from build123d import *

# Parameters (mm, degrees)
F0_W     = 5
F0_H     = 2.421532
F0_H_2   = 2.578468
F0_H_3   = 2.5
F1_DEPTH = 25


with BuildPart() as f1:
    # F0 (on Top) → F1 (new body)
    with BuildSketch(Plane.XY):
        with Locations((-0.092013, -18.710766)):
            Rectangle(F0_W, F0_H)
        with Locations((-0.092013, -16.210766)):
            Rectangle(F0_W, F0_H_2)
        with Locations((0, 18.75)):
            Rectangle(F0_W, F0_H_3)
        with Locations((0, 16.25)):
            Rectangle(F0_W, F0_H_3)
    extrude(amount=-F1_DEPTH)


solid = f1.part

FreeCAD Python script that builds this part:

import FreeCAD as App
import Part
import Sketcher


def add_polygon(sketch, points):
    """Adds a closed chain of lines whose ends are joined by coincident constraints."""
    first, n = sketch.GeometryCount, len(points)
    for a, b in zip(points, points[1:] + points[:1]):
        sketch.addGeometry(Part.LineSegment(App.Vector(*a, 0), App.Vector(*b, 0)), False)
    for i in range(n):
        sketch.addConstraint(Sketcher.Constraint("Coincident", first + i, 2, first + (i + 1) % n, 1))

doc = App.newDocument("Part")
body = doc.addObject("PartDesign::Body", "Body")
body.AllowCompound = True

# Sketch on XY plane
sketch1 = doc.addObject("Sketcher::SketchObject", "Sketch")
body.addObject(sketch1)
sketch1.AttachmentSupport = (doc.XY_Plane, [""])
sketch1.MapMode = "FlatFace"
add_polygon(sketch1, [(-3, -20), (2, -20), (2, -15), (-3, -15)])  # lines 0-3
add_polygon(sketch1, [(-2, 20), (-2, 15), (2, 15), (2, 20)])  # lines 4-7
sketch1.addConstraint(Sketcher.Constraint("Horizontal", 0))
sketch1.addConstraint(Sketcher.Constraint("Vertical", 1))
sketch1.addConstraint(Sketcher.Constraint("Horizontal", 2))
sketch1.addConstraint(Sketcher.Constraint("Vertical", 3))
sketch1.addConstraint(Sketcher.Constraint("Vertical", 4))
sketch1.addConstraint(Sketcher.Constraint("Horizontal", 5))
sketch1.addConstraint(Sketcher.Constraint("Vertical", 6))
sketch1.addConstraint(Sketcher.Constraint("Horizontal", 7))
sketch1.addConstraint(Sketcher.Constraint("Equal", 2, 5))
sketch1.addConstraint(Sketcher.Constraint("Equal", 7, 1))
sketch1.addConstraint(Sketcher.Constraint("Equal", 3, 4))
sketch1.addConstraint(Sketcher.Constraint("DistanceX", 0, 1, 0, 2, 5.0))
sketch1.addConstraint(Sketcher.Constraint("DistanceY", -1, 1, 4, 2, 15.0))
sketch1.addConstraint(Sketcher.Constraint("DistanceX", 4, 2, -1, 1, 2.5))
sketch1.addConstraint(Sketcher.Constraint("DistanceY", 0, 2, -1, 1, 19.921532))
sketch1.addConstraint(Sketcher.Constraint("DistanceX", -1, 1, 0, 2, 2.407987))
pad1 = doc.addObject("PartDesign::Pad", "Pad")
body.addObject(pad1)
pad1.Profile = sketch1
pad1.Length = 25
pad1.Reversed = True

doc.recompute()
